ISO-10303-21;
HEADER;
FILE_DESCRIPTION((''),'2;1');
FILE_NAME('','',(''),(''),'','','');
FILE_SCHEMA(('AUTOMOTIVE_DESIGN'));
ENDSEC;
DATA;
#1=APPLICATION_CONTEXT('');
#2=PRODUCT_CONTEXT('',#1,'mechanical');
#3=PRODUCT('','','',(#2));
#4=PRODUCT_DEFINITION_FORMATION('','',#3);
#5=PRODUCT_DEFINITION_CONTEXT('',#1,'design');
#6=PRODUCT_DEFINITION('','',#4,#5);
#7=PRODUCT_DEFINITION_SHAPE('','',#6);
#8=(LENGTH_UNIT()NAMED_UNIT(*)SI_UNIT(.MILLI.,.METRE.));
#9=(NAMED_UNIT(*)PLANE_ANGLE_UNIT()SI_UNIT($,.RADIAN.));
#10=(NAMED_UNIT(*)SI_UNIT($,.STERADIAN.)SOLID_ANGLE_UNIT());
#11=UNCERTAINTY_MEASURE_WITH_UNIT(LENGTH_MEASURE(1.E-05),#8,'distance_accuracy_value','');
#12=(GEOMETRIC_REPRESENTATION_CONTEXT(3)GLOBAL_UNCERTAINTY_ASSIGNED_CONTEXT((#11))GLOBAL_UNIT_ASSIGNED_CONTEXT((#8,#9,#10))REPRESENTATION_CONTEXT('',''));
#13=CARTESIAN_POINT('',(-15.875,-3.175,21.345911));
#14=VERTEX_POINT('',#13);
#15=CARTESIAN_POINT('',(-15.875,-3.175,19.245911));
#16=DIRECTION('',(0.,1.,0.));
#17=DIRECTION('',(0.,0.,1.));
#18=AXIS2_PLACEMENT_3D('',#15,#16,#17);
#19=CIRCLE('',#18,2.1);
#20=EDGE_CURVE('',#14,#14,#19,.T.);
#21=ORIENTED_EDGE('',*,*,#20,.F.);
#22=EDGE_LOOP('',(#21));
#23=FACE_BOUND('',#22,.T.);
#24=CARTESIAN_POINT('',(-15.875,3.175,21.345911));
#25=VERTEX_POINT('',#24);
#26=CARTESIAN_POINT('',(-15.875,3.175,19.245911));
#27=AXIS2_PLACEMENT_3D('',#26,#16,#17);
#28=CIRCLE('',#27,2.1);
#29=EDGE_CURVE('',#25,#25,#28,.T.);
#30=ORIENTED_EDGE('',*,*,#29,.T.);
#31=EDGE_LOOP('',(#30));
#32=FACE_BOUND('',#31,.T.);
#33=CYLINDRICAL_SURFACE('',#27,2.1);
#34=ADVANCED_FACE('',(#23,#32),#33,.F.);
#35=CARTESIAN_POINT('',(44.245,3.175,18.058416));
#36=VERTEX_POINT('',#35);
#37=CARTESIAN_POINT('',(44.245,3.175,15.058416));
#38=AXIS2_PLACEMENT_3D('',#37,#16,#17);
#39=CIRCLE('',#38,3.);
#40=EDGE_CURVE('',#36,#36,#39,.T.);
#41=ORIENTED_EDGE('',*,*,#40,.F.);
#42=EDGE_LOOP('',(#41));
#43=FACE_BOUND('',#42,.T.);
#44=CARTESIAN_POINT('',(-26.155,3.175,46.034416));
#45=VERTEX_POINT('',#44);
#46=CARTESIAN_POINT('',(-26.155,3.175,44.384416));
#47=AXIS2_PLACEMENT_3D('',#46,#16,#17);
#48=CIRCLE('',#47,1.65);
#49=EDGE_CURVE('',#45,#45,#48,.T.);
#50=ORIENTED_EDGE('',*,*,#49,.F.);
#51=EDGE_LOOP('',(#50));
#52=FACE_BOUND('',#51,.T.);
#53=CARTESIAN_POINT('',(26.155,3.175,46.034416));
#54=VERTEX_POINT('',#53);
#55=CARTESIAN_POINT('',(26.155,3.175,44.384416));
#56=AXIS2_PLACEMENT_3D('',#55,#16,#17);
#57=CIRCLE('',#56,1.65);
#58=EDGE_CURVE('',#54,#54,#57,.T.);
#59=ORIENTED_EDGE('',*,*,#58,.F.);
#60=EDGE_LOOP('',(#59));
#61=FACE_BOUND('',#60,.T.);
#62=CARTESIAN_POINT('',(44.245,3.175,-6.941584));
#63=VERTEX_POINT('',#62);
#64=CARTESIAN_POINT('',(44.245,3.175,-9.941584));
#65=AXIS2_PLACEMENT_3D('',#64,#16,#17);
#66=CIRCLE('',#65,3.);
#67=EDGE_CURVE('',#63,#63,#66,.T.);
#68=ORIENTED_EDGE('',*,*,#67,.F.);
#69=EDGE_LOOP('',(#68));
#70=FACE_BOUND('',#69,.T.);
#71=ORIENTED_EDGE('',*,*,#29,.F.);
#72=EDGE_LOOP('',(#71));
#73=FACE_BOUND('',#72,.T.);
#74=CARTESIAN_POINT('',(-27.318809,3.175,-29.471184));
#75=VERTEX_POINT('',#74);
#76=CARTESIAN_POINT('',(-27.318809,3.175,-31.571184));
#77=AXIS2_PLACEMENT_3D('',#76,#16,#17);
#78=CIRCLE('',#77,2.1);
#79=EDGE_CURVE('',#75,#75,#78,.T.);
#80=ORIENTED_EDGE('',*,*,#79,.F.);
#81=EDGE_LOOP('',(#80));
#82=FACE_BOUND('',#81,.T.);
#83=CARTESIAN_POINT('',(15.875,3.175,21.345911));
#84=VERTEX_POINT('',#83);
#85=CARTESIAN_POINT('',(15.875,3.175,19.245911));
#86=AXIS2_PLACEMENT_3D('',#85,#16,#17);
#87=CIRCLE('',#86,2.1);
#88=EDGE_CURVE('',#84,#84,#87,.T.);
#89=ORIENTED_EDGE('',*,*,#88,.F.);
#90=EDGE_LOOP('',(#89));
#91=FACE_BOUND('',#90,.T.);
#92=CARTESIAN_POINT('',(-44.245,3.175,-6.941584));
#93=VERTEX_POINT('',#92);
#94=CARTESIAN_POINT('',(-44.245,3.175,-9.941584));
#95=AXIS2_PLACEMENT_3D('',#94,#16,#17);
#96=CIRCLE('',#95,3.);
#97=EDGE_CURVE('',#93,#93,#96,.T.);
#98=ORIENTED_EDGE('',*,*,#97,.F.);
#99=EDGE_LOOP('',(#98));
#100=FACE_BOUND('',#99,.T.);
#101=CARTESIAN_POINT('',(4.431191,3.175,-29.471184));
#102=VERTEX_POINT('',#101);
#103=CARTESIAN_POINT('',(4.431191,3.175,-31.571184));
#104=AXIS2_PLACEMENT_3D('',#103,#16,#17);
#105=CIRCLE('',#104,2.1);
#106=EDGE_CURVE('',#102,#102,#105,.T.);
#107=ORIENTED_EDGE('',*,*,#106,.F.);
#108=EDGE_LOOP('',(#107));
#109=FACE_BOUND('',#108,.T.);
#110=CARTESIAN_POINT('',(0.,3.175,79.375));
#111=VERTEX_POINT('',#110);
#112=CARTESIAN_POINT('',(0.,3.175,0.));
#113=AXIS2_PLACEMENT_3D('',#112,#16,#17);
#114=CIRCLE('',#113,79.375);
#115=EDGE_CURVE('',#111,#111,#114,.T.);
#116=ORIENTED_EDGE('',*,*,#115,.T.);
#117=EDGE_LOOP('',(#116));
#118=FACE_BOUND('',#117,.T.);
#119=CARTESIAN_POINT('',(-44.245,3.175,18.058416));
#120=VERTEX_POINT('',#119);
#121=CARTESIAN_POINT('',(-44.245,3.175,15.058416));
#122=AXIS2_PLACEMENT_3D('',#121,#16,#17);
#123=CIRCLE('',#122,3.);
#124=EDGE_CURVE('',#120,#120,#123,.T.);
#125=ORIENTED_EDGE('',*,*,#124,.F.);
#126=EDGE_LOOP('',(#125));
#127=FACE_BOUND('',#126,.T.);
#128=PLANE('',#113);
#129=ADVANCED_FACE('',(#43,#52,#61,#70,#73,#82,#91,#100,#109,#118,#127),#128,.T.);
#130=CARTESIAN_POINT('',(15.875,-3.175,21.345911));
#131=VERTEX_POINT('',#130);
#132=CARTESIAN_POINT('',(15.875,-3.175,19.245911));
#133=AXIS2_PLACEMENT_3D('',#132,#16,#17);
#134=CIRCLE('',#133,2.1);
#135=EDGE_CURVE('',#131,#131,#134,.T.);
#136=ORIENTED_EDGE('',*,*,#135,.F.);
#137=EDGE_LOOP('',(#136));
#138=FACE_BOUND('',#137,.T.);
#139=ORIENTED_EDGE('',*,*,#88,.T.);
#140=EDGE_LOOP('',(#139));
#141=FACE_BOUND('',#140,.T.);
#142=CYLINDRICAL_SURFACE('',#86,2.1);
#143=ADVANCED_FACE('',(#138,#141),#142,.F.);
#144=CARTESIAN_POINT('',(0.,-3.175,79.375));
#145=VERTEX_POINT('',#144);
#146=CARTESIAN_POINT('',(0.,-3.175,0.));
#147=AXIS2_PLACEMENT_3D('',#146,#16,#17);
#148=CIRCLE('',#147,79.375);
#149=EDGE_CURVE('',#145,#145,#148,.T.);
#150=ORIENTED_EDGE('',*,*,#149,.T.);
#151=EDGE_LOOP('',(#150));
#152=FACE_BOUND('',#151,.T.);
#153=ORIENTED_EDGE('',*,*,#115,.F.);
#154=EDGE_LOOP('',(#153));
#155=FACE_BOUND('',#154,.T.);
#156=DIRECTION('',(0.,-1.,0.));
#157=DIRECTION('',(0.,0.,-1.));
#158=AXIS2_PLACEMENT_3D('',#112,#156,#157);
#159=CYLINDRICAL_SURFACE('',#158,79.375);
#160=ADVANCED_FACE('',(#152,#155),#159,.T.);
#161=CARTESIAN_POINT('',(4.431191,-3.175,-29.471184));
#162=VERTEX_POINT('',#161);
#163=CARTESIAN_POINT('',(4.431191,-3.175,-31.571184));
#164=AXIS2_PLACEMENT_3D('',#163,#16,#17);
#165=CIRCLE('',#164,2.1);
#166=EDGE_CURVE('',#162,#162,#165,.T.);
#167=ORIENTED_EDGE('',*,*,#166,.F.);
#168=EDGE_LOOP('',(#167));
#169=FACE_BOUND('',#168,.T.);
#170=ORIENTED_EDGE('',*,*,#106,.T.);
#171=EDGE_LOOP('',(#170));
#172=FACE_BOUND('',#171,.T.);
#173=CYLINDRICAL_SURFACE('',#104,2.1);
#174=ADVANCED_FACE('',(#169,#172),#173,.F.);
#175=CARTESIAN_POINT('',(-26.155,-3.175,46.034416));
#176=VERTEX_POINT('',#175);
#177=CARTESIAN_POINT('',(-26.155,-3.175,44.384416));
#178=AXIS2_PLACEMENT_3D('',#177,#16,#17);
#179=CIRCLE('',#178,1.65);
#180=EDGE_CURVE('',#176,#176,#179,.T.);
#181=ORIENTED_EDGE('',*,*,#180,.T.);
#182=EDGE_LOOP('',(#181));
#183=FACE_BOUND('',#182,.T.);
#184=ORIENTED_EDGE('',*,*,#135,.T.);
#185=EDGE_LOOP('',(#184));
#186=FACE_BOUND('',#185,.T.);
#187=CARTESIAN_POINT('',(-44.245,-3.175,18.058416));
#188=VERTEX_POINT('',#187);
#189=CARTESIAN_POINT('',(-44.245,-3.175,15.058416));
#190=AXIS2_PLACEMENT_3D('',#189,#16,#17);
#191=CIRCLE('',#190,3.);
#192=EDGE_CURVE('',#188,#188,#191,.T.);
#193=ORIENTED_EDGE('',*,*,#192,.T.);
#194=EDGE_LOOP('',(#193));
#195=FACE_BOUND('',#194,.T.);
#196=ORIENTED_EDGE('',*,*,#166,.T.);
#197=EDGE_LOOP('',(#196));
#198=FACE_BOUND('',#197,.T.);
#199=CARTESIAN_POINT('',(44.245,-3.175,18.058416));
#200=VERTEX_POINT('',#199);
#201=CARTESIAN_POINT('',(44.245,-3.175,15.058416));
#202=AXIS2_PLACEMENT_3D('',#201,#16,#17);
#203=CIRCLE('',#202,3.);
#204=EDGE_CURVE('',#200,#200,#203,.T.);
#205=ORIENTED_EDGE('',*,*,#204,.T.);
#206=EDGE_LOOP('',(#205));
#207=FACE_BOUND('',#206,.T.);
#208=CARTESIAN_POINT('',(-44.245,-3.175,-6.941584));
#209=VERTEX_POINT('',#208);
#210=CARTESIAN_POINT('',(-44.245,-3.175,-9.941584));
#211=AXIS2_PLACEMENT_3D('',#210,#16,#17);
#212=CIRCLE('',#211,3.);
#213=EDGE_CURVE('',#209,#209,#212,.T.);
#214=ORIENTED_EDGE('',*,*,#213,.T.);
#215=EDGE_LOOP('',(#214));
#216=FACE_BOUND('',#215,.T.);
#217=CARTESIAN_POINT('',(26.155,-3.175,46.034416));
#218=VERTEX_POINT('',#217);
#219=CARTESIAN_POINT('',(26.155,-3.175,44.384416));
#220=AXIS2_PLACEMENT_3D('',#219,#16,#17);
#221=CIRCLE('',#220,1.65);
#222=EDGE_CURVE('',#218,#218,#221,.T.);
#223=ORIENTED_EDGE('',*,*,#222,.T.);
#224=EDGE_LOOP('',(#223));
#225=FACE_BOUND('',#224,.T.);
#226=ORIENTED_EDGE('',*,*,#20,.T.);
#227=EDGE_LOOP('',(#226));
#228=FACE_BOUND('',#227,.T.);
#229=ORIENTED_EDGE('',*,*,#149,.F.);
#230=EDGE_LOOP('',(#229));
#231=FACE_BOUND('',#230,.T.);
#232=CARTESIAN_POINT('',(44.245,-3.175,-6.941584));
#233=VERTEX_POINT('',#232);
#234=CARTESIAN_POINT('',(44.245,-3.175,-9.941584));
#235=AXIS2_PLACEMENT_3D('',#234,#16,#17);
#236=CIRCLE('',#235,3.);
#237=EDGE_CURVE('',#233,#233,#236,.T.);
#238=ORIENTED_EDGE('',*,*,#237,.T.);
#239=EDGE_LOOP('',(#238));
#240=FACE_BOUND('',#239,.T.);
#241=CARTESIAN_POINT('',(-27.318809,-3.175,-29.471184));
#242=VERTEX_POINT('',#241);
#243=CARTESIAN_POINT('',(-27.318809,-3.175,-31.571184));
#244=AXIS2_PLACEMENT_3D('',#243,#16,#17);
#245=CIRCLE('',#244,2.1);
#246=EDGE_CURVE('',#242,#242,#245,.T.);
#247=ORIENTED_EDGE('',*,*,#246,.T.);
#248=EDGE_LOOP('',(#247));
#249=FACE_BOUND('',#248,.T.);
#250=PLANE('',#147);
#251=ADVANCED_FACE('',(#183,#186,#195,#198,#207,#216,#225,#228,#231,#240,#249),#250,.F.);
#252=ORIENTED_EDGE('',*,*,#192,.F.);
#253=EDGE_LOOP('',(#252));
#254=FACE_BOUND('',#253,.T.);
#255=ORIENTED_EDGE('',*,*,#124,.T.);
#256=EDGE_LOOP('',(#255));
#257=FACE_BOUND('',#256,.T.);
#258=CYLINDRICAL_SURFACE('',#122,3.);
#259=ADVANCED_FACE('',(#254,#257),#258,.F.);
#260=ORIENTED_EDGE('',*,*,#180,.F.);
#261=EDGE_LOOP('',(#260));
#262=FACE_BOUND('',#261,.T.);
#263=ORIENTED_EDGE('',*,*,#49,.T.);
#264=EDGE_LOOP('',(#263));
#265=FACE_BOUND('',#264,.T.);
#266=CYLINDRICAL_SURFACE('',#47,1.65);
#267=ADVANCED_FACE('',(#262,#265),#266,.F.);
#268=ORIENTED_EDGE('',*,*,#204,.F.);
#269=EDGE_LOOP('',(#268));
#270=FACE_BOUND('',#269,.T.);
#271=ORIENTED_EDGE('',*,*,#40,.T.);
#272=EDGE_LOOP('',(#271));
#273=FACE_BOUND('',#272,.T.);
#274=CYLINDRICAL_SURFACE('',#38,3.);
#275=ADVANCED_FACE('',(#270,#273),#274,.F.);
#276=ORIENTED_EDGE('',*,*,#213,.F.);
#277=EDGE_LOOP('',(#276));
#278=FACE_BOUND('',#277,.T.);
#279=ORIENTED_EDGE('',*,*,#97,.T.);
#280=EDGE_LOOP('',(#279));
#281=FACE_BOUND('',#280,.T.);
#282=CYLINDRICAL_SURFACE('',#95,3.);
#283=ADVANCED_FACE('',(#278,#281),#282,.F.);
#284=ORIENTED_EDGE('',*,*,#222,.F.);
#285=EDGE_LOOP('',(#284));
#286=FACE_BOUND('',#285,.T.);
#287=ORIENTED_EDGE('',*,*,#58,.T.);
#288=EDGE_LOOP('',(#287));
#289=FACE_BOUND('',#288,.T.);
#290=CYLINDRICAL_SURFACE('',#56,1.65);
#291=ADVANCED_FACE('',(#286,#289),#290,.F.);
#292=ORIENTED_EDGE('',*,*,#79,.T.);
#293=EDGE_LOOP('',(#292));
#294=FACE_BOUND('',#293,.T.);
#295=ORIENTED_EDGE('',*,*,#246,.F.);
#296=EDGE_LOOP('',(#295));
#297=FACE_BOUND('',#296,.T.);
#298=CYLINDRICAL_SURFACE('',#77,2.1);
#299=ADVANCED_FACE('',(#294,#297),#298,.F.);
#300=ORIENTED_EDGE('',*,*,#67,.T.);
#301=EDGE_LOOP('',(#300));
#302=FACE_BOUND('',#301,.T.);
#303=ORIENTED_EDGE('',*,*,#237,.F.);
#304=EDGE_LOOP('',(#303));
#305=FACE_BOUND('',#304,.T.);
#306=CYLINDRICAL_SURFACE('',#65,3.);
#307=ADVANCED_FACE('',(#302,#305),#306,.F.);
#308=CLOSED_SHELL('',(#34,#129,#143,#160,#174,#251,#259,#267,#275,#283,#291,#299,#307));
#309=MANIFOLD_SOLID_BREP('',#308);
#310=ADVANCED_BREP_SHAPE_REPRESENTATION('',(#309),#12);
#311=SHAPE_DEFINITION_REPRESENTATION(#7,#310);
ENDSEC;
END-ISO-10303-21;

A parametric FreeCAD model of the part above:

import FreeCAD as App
import Part
import Sketcher
from FreeCAD import Vector
Q = App.Units.Quantity

doc = App.newDocument("Part")
body = doc.addObject("PartDesign::Body", "Body")

sketch1 = doc.addObject("Sketcher::SketchObject", "Sketch")
body.addObject(sketch1)
sketch1.AttachmentSupport = (doc.XZ_Plane, [""])
sketch1.MapMode = "FlatFace"
sketch1.addGeometry(Part.Circle(Vector(0, 0, 0), Vector(0, 0, 1), 79), False)
sketch1.addConstraint([
    Sketcher.Constraint("Coincident", 0, 3, -1, 1),
    Sketcher.Constraint("Diameter", 0, Q("158.75 mm")),
])
pad1 = doc.addObject("PartDesign::Pad", "Pad")
body.addObject(pad1)
pad1.Profile = sketch1
pad1.Length = 6.35
pad1.Midplane = True

sketch2 = doc.addObject("Sketcher::SketchObject", "Sketch001")
body.addObject(sketch2)
sketch2.AttachmentSupport = (doc.XZ_Plane, [""])
sketch2.MapMode = "FlatFace"
sketch2.AttachmentOffset = App.Placement(Vector(0, 0, -3.175), App.Rotation())
sketch2.addGeometry([
    Part.Circle(Vector(-27.3, -31.6, 0), Vector(0, 0, 1), 2.1),
    Part.Circle(Vector(4.4, -31.6, 0), Vector(0, 0, 1), 2.1),
    Part.Circle(Vector(-15.9, 19.2, 0), Vector(0, 0, 1), 2.1),
    Part.Circle(Vector(15.9, 19.2, 0), Vector(0, 0, 1), 2.1),
], False)
sketch2.addConstraint([
    Sketcher.Constraint("Equal", 0, 1),
    Sketcher.Constraint("Equal", 1, 2),
    Sketcher.Constraint("Equal", 2, 3),
    Sketcher.Constraint("Symmetric", 2, 3, 3, 3, -2),
    Sketcher.Constraint("Horizontal", 0, 3, 1, 3),
    Sketcher.Constraint("Diameter", 0, Q("4.2 mm")),
    Sketcher.Constraint("DistanceX", 0, 3, 1, 3, Q("31.75 mm")),
    Sketcher.Constraint("DistanceX", 2, 3, 3, 3, Q("31.75 mm")),
    Sketcher.Constraint("DistanceX", 0, 3, -1, 1, Q("27.318809 mm")),
    Sketcher.Constraint("DistanceY", -1, 1, 2, 3, Q("19.245911 mm")),
    Sketcher.Constraint("DistanceY", 0, 3, -1, 1, Q("31.571184 mm")),
])
doc.recompute()
hole = doc.addObject("PartDesign::Hole", "Hole")
body.addObject(hole)
hole.Profile = sketch2
hole.ThreadType = "None"
hole.Diameter = 4.2
hole.DepthType = "ThroughAll"
hole.Reversed = True

sketch3 = doc.addObject("Sketcher::SketchObject", "Sketch002")
body.addObject(sketch3)
sketch3.AttachmentSupport = (doc.XZ_Plane, [""])
sketch3.MapMode = "FlatFace"
sketch3.AttachmentOffset = App.Placement(Vector(0, 0, -3.175), App.Rotation())
sketch3.addGeometry([
    Part.Circle(Vector(-44.2, -9.9, 0), Vector(0, 0, 1), 3),
    Part.Circle(Vector(-44.2, 15.1, 0), Vector(0, 0, 1), 3),
    Part.Circle(Vector(44.2, -9.9, 0), Vector(0, 0, 1), 3),
    Part.Circle(Vector(44.2, 15.1, 0), Vector(0, 0, 1), 3),
], False)
sketch3.addConstraint([
    Sketcher.Constraint("Equal", 0, 1),
    Sketcher.Constraint("Equal", 1, 2),
    Sketcher.Constraint("Equal", 2, 3),
    Sketcher.Constraint("Symmetric", 0, 3, 2, 3, -2),
    Sketcher.Constraint("Symmetric", 1, 3, 3, 3, -2),
    Sketcher.Constraint("Vertical", 0, 3, 1, 3),
    Sketcher.Constraint("Diameter", 0, Q("6 mm")),
    Sketcher.Constraint("DistanceY", 0, 3, 1, 3, Q("25 mm")),
    Sketcher.Constraint("DistanceX", 0, 3, 2, 3, Q("88.49 mm")),
    Sketcher.Constraint("DistanceY", 0, 3, -1, 1, Q("9.941584 mm")),
])
doc.recompute()
hole2 = doc.addObject("PartDesign::Hole", "Hole001")
body.addObject(hole2)
hole2.Profile = sketch3
hole2.ThreadType = "None"
hole2.Diameter = 6
hole2.DepthType = "ThroughAll"
hole2.Reversed = True

sketch4 = doc.addObject("Sketcher::SketchObject", "Sketch003")
body.addObject(sketch4)
sketch4.AttachmentSupport = (doc.XZ_Plane, [""])
sketch4.MapMode = "FlatFace"
sketch4.AttachmentOffset = App.Placement(Vector(0, 0, -3.175), App.Rotation())
sketch4.addGeometry([
    Part.Circle(Vector(-26.2, 44.4, 0), Vector(0, 0, 1), 1.6),
    Part.Circle(Vector(26.2, 44.4, 0), Vector(0, 0, 1), 1.6),
], False)
sketch4.addConstraint([
    Sketcher.Constraint("Equal", 0, 1),
    Sketcher.Constraint("Symmetric", 0, 3, 1, 3, -2),
    Sketcher.Constraint("Diameter", 0, Q("3.3 mm")),
    Sketcher.Constraint("DistanceX", 0, 3, 1, 3, Q("52.31 mm")),
    Sketcher.Constraint("DistanceY", -1, 1, 0, 3, Q("44.384416 mm")),
])
doc.recompute()
hole3 = doc.addObject("PartDesign::Hole", "Hole002")
body.addObject(hole3)
hole3.Profile = sketch4
hole3.ThreadType = "None"
hole3.Diameter = 3.3
hole3.DepthType = "ThroughAll"
hole3.Reversed = True

doc.recompute()
